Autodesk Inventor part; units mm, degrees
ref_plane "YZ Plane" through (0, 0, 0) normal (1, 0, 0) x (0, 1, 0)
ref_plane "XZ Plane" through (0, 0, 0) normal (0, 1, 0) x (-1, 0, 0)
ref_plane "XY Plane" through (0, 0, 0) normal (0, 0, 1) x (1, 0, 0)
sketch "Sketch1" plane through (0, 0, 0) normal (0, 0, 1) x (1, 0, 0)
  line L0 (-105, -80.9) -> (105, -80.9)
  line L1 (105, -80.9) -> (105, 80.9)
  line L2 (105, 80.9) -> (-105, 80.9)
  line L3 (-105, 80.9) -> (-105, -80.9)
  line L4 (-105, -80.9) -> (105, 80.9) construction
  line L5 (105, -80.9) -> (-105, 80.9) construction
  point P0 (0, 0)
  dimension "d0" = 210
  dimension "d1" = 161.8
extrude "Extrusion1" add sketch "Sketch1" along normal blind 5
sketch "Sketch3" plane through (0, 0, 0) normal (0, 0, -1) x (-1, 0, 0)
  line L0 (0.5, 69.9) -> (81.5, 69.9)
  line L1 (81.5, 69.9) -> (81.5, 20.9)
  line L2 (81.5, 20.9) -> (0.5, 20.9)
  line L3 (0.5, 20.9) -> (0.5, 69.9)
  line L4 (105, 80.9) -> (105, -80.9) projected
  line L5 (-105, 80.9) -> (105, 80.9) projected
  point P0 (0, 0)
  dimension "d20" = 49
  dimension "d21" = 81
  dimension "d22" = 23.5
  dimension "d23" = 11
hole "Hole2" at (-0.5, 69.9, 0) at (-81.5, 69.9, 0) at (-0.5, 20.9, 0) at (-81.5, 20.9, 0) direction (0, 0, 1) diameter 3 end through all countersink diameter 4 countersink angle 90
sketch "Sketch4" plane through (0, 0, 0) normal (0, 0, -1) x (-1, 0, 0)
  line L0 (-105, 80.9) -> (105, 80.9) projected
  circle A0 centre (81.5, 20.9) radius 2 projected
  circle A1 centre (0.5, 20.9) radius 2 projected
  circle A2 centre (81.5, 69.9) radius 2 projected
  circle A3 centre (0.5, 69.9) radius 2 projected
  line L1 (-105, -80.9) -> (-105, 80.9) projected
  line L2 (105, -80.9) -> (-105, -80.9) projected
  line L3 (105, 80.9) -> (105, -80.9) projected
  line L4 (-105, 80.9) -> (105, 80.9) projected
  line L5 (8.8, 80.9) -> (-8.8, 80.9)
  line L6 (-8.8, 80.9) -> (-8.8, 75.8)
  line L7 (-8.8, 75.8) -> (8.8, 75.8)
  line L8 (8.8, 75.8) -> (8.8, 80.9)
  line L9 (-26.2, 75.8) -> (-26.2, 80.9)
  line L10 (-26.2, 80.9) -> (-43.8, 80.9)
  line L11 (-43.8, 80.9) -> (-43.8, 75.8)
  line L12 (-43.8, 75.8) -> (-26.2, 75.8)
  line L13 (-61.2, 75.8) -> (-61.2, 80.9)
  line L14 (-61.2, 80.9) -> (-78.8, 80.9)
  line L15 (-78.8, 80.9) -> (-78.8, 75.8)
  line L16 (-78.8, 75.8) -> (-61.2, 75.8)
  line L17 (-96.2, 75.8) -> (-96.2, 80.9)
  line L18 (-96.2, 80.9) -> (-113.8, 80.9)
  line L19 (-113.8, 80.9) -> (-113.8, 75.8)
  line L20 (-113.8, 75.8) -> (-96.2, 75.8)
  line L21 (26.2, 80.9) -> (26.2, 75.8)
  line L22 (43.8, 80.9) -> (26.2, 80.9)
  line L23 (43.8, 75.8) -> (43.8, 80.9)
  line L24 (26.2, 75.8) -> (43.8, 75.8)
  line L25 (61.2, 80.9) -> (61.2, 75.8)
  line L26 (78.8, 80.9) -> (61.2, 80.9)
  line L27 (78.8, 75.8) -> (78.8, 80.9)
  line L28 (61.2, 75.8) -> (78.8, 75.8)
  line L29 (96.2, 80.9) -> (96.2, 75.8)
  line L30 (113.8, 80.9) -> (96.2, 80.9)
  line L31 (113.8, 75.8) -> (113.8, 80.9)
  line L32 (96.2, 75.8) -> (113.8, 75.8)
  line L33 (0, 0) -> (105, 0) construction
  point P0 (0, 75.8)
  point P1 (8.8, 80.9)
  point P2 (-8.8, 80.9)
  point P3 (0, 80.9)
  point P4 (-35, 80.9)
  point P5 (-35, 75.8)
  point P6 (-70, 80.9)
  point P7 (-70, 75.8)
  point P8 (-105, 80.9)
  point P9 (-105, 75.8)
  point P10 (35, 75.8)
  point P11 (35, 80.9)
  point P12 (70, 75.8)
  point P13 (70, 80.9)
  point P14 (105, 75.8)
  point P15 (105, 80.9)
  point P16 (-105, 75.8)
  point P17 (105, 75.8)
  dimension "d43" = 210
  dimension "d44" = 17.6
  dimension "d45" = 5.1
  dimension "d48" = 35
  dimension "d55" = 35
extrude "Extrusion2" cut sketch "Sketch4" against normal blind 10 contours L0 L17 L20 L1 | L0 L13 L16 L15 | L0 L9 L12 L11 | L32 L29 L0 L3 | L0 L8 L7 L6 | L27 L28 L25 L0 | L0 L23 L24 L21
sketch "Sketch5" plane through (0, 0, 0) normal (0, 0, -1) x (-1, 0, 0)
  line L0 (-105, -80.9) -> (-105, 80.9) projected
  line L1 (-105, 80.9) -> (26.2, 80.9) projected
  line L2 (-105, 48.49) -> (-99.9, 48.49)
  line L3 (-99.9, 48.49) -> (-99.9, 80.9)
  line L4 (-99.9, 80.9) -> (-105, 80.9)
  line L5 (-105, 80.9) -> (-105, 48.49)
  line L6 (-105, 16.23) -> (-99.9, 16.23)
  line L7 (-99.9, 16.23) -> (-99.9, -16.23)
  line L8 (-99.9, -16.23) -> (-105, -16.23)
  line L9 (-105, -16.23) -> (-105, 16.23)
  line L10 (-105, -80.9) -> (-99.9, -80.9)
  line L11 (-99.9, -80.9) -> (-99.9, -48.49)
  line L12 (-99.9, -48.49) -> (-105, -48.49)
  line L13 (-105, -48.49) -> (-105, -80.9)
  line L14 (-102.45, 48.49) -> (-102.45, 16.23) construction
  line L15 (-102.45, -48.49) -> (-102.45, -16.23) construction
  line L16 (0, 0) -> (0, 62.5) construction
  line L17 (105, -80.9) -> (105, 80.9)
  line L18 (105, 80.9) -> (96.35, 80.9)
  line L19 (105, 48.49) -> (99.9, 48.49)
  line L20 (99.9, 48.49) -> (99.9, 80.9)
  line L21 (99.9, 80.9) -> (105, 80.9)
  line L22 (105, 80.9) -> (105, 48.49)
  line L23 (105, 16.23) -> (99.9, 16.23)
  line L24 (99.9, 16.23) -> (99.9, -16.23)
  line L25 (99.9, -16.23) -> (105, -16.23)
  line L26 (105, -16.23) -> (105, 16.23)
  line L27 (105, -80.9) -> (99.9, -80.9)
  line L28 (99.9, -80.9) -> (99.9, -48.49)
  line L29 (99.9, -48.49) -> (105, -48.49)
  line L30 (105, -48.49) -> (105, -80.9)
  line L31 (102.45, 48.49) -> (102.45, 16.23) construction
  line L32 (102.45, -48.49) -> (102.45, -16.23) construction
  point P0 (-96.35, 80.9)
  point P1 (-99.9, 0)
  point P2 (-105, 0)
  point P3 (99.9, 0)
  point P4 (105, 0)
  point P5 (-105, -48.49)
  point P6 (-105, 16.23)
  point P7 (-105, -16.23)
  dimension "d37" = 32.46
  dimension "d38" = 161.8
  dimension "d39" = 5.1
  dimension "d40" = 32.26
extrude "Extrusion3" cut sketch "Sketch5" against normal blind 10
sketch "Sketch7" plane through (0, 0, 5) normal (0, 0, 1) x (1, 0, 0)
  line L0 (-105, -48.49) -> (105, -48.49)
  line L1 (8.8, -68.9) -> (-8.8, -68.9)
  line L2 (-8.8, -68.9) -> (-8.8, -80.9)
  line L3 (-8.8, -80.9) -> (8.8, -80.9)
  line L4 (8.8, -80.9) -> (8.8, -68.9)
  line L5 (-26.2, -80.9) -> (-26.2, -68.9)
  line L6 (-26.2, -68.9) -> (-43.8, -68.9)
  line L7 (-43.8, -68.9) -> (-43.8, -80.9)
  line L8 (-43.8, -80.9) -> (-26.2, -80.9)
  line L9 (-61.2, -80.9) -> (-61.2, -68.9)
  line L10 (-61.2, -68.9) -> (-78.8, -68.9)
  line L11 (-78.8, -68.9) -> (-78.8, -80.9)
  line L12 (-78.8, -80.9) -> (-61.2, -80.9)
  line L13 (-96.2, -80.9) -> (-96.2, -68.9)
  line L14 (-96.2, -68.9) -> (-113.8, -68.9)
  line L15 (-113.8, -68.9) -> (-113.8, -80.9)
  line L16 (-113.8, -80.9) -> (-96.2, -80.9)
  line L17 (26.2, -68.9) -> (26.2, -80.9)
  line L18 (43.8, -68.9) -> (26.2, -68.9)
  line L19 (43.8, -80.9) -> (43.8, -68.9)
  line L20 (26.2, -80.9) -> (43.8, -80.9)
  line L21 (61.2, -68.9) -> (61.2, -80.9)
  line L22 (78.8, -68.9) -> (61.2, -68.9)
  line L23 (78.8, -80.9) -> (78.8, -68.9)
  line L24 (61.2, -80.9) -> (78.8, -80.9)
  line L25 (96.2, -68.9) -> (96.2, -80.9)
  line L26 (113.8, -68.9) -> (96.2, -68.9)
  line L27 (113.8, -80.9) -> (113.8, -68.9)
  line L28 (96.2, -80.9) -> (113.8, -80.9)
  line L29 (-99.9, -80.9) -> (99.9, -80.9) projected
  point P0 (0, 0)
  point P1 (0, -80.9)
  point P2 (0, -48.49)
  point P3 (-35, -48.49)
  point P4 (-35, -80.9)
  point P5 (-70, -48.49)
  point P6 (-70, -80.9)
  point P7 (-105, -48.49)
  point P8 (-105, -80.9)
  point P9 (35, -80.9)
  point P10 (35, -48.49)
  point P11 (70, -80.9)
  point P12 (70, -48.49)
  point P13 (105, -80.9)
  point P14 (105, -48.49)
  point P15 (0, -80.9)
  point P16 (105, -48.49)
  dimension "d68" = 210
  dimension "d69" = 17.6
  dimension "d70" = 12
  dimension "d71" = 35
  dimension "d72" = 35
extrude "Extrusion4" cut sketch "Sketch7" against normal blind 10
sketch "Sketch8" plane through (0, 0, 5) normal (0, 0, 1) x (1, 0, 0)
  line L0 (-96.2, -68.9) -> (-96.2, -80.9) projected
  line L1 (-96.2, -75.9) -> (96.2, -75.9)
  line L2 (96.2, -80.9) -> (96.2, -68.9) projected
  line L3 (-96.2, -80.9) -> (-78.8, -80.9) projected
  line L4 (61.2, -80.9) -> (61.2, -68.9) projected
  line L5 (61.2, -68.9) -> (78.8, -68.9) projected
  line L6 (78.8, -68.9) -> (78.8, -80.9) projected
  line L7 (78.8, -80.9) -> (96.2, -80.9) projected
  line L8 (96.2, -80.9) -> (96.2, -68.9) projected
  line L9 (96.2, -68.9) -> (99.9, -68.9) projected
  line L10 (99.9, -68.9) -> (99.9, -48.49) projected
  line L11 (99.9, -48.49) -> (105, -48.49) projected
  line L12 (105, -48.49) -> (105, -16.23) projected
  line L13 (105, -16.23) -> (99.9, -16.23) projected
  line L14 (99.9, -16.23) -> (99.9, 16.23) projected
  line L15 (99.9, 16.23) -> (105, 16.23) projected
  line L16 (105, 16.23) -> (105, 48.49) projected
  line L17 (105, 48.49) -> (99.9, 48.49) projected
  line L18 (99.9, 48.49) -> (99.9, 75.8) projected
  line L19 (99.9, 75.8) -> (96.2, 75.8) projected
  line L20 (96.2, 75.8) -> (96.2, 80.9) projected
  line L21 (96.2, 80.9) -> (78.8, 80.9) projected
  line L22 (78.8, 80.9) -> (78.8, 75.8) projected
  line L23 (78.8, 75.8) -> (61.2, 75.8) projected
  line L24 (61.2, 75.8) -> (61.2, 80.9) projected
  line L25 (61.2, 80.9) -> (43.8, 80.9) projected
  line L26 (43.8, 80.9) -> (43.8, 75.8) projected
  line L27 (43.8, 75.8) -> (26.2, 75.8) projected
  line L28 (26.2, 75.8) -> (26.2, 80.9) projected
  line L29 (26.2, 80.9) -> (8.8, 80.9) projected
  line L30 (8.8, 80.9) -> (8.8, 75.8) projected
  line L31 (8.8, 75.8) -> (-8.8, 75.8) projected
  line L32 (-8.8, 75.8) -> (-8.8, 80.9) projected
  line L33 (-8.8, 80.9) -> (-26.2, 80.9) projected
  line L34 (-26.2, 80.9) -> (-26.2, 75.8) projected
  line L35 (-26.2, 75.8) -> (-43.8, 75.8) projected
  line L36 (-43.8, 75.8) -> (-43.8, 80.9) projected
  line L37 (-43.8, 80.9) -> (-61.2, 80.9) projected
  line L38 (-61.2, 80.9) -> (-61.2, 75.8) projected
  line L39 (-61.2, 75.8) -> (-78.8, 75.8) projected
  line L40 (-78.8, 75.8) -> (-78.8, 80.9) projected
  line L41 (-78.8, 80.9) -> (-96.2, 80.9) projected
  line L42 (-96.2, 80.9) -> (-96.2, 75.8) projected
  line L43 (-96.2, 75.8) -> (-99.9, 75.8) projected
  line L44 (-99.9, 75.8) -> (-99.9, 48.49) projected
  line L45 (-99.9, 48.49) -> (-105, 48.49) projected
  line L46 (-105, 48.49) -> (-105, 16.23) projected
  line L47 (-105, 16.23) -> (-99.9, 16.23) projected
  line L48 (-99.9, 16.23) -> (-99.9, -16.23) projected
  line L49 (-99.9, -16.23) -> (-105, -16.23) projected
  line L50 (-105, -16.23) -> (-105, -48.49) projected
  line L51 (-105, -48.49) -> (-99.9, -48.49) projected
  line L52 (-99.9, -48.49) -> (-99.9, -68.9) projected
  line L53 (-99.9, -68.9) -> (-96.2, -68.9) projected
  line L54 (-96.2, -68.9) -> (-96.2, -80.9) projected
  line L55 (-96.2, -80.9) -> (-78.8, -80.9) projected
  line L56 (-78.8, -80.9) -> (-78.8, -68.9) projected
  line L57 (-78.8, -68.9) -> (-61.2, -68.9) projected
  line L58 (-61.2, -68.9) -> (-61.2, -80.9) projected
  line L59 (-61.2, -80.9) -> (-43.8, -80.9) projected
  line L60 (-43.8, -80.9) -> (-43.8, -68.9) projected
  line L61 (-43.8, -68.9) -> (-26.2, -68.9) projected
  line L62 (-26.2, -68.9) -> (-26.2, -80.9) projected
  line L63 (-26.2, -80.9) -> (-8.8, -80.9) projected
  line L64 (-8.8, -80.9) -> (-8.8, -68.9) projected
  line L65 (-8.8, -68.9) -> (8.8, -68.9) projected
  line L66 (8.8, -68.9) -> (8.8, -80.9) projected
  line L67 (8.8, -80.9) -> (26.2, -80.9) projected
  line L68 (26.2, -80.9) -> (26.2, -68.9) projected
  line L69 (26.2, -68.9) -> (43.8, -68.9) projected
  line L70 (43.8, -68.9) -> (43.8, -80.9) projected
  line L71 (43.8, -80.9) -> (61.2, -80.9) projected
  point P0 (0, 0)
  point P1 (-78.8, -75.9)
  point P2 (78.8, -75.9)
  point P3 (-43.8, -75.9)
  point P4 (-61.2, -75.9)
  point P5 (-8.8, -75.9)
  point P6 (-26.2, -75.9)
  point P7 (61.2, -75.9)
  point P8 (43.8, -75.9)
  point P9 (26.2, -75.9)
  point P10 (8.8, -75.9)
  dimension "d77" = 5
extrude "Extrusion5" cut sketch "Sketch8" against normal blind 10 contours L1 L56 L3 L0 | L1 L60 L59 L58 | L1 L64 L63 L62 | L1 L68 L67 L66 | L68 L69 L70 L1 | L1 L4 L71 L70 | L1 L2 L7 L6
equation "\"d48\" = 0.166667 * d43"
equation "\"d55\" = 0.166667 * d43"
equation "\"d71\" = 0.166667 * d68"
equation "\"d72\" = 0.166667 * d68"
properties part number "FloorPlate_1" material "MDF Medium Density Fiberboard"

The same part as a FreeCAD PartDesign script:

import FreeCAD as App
import Part
import Sketcher

V = App.Vector

doc = App.newDocument("Part")
body = doc.addObject("PartDesign::Body", "Body")

# Sketch on XY plane
sketch1 = body.newObject("Sketcher::SketchObject", "Sketch")
sketch1.AttachmentSupport = (doc.getObject("XY_Plane"), [""])
sketch1.MapMode = "FlatFace"
sketch1.addGeometry([
    Part.LineSegment(V(-105, 81, 0), V(-105, -81, 0)),
    Part.LineSegment(V(-105, -81, 0), V(105, -81, 0)),
    Part.LineSegment(V(105, -81, 0), V(105, 81, 0)),
    Part.LineSegment(V(105, 81, 0), V(-105, 81, 0)),
], False)
sketch1.addConstraint([
    Sketcher.Constraint("Coincident", 0, 2, 1, 1),
    Sketcher.Constraint("Coincident", 1, 2, 2, 1),
    Sketcher.Constraint("Coincident", 2, 2, 3, 1),
    Sketcher.Constraint("Coincident", 3, 2, 0, 1),
    Sketcher.Constraint("Vertical", 0),
    Sketcher.Constraint("Horizontal", 1),
    Sketcher.Constraint("Vertical", 2),
    Sketcher.Constraint("Horizontal", 3),
    Sketcher.Constraint("Symmetric", 0, 2, 2, 2, -1, 1),
    Sketcher.Constraint("DistanceX", 1, 1, 1, 2, 210.0),
    Sketcher.Constraint("DistanceY", 0, 2, 0, 1, 161.8),
])
pad1 = body.newObject("PartDesign::Pad", "Pad")
pad1.Profile = sketch1
pad1.Length = 5

# Sketch on XY plane
sketch2 = body.newObject("Sketcher::SketchObject", "Sketch001")
sketch2.AttachmentSupport = (doc.getObject("XY_Plane"), [""])
sketch2.MapMode = "FlatFace"
sketch2.addGeometry([
    Part.Circle(V(-0.5, 69.9, 0), V(0, 0, 1), 1.5),
    Part.Circle(V(-81.5, 69.9, 0), V(0, 0, 1), 1.5),
    Part.Circle(V(-0.5, 20.9, 0), V(0, 0, 1), 1.5),
    Part.Circle(V(-81.5, 20.9, 0), V(0, 0, 1), 1.5),
], False)
sketch2.addConstraint([
    Sketcher.Constraint("Equal", 0, 1),
    Sketcher.Constraint("Equal", 1, 2),
    Sketcher.Constraint("Equal", 2, 3),
    Sketcher.Constraint("Horizontal", 0, 3, 1, 3),
    Sketcher.Constraint("Horizontal", 2, 3, 3, 3),
    Sketcher.Constraint("Vertical", 0, 3, 2, 3),
    Sketcher.Constraint("Vertical", 1, 3, 3, 3),
    Sketcher.Constraint("Diameter", 0, 3.0),
    Sketcher.Constraint("DistanceX", 1, 3, 0, 3, 81.0),
    Sketcher.Constraint("DistanceY", 2, 3, 0, 3, 49.0),
    Sketcher.Constraint("DistanceX", 0, 3, -1, 1, 0.5),
    Sketcher.Constraint("DistanceY", -1, 1, 0, 3, 69.9),
])
doc.recompute()
hole = body.newObject("PartDesign::Hole", "Hole")
hole.Profile = sketch2
hole.ThreadType = "None"
hole.Diameter = 3
hole.DepthType = "ThroughAll"
hole.HoleCutType = "Countersink"
hole.HoleCutDiameter = 4
hole.HoleCutCountersinkAngle = 90
hole.Reversed = True

# Sketch on XY plane
sketch3 = body.newObject("Sketcher::SketchObject", "Sketch002")
sketch3.AttachmentSupport = (doc.getObject("XY_Plane"), [""])
sketch3.MapMode = "FlatFace"
sketch3.addGeometry([
    Part.LineSegment(V(96, 81, 0), V(105, 81, 0)),  # 0
    Part.LineSegment(V(105, 81, 0), V(105, 76, 0)),  # 1
    Part.LineSegment(V(105, 76, 0), V(96, 76, 0)),  # 2
    Part.LineSegment(V(96, 76, 0), V(96, 81, 0)),  # 3
    Part.LineSegment(V(61, 81, 0), V(79, 81, 0)),  # 4
    Part.LineSegment(V(79, 81, 0), V(79, 76, 0)),  # 5
    Part.LineSegment(V(79, 76, 0), V(61, 76, 0)),  # 6
    Part.LineSegment(V(61, 76, 0), V(61, 81, 0)),  # 7
    Part.LineSegment(V(26, 81, 0), V(44, 81, 0)),  # 8
    Part.LineSegment(V(44, 81, 0), V(44, 76, 0)),  # 9
    Part.LineSegment(V(44, 76, 0), V(26, 76, 0)),  # 10
    Part.LineSegment(V(26, 76, 0), V(26, 81, 0)),  # 11
    Part.LineSegment(V(-96, 76, 0), V(-105, 76, 0)),  # 12
    Part.LineSegment(V(-105, 76, 0), V(-105, 81, 0)),  # 13
    Part.LineSegment(V(-105, 81, 0), V(-96, 81, 0)),  # 14
    Part.LineSegment(V(-96, 81, 0), V(-96, 76, 0)),  # 15
    Part.LineSegment(V(-9, 81, 0), V(9, 81, 0)),  # 16
    Part.LineSegment(V(9, 81, 0), V(9, 76, 0)),  # 17
    Part.LineSegment(V(9, 76, 0), V(-9, 76, 0)),  # 18
    Part.LineSegment(V(-9, 76, 0), V(-9, 81, 0)),  # 19
    Part.LineSegment(V(-79, 76, 0), V(-79, 81, 0)),  # 20
    Part.LineSegment(V(-79, 81, 0), V(-61, 81, 0)),  # 21
    Part.LineSegment(V(-61, 81, 0), V(-61, 76, 0)),  # 22
    Part.LineSegment(V(-61, 76, 0), V(-79, 76, 0)),  # 23
    Part.LineSegment(V(-44, 81, 0), V(-26, 81, 0)),  # 24
    Part.LineSegment(V(-26, 81, 0), V(-26, 76, 0)),  # 25
    Part.LineSegment(V(-26, 76, 0), V(-44, 76, 0)),  # 26
    Part.LineSegment(V(-44, 76, 0), V(-44, 81, 0)),  # 27
], False)
sketch3.addConstraint([
    Sketcher.Constraint("Coincident", 0, 2, 1, 1),
    Sketcher.Constraint("Coincident", 1, 2, 2, 1),
    Sketcher.Constraint("Coincident", 2, 2, 3, 1),
    Sketcher.Constraint("Coincident", 3, 2, 0, 1),
    Sketcher.Constraint("Coincident", 4, 2, 5, 1),
    Sketcher.Constraint("Coincident", 5, 2, 6, 1),
    Sketcher.Constraint("Coincident", 6, 2, 7, 1),
    Sketcher.Constraint("Coincident", 7, 2, 4, 1),
    Sketcher.Constraint("Coincident", 8, 2, 9, 1),
    Sketcher.Constraint("Coincident", 9, 2, 10, 1),
    Sketcher.Constraint("Coincident", 10, 2, 11, 1),
    Sketcher.Constraint("Coincident", 11, 2, 8, 1),
    Sketcher.Constraint("Coincident", 12, 2, 13, 1),
    Sketcher.Constraint("Coincident", 13, 2, 14, 1),
    Sketcher.Constraint("Coincident", 14, 2, 15, 1),
    Sketcher.Constraint("Coincident", 15, 2, 12, 1),
    Sketcher.Constraint("Coincident", 16, 2, 17, 1),
    Sketcher.Constraint("Coincident", 17, 2, 18, 1),
    Sketcher.Constraint("Coincident", 18, 2, 19, 1),
    Sketcher.Constraint("Coincident", 19, 2, 16, 1),
    Sketcher.Constraint("Coincident", 20, 2, 21, 1),
    Sketcher.Constraint("Coincident", 21, 2, 22, 1),
    Sketcher.Constraint("Coincident", 22, 2, 23, 1),
    Sketcher.Constraint("Coincident", 23, 2, 20, 1),
    Sketcher.Constraint("Coincident", 24, 2, 25, 1),
    Sketcher.Constraint("Coincident", 25, 2, 26, 1),
    Sketcher.Constraint("Coincident", 26, 2, 27, 1),
    Sketcher.Constraint("Coincident", 27, 2, 24, 1),
    Sketcher.Constraint("Horizontal", 0),
    Sketcher.Constraint("Vertical", 1),
    Sketcher.Constraint("Horizontal", 2),
    Sketcher.Constraint("Vertical", 3),
    Sketcher.Constraint("Horizontal", 4),
    Sketcher.Constraint("Vertical", 5),
    Sketcher.Constraint("Horizontal", 6),
    Sketcher.Constraint("Vertical", 7),
    Sketcher.Constraint("Horizontal", 8),
    Sketcher.Constraint("Vertical", 9),
    Sketcher.Constraint("Horizontal", 10),
    Sketcher.Constraint("Vertical", 11),
    Sketcher.Constraint("Horizontal", 12),
    Sketcher.Constraint("Vertical", 13),
    Sketcher.Constraint("Horizontal", 14),
    Sketcher.Constraint("Vertical", 15),
    Sketcher.Constraint("Horizontal", 16),
    Sketcher.Constraint("Vertical", 17),
    Sketcher.Constraint("Horizontal", 18),
    Sketcher.Constraint("Vertical", 19),
    Sketcher.Constraint("Vertical", 20),
    Sketcher.Constraint("Horizontal", 21),
    Sketcher.Constraint("Vertical", 22),
    Sketcher.Constraint("Horizontal", 23),
    Sketcher.Constraint("Horizontal", 24),
    Sketcher.Constraint("Vertical", 25),
    Sketcher.Constraint("Horizontal", 26),
    Sketcher.Constraint("Vertical", 27),
    Sketcher.Constraint("Symmetric", 1, 2, 12, 2, -2),
    Sketcher.Constraint("Symmetric", 3, 2, 14, 2, -2),
    Sketcher.Constraint("Symmetric", 4, 2, 20, 2, -2),
    Sketcher.Constraint("Symmetric", 6, 2, 22, 2, -2),
    Sketcher.Constraint("Symmetric", 11, 2, 24, 2, -2),
    Sketcher.Constraint("Symmetric", 9, 2, 26, 2, -2),
    Sketcher.Constraint("Horizontal", 3, 2, 4, 2),
    Sketcher.Constraint("Horizontal", 2, 2, 5, 2),
    Sketcher.Constraint("Horizontal", 7, 2, 8, 2),
    Sketcher.Constraint("Horizontal", 6, 2, 9, 2),
    Sketcher.Constraint("Horizontal", 14, 2, 16, 2),
    Sketcher.Constraint("Horizontal", 15, 2, 17, 2),
    Sketcher.Constraint("Equal", 6, 8),
    Sketcher.Constraint("Equal", 10, 16),
    Sketcher.Constraint("DistanceX", 4, 1, 4, 2, 17.6),
    Sketcher.Constraint("DistanceY", 1, 2, 1, 1, 5.1),
    Sketcher.Constraint("DistanceX", 6, 2, 2, 2, 35.0),
    Sketcher.Constraint("DistanceX", 8, 2, 4, 2, 35.0),
    Sketcher.Constraint("DistanceX", 16, 2, 8, 2, 35.0),
    Sketcher.Constraint("DistanceX", 24, 2, 16, 2, 35.0),
    Sketcher.Constraint("DistanceX", 0, 1, 0, 2, 8.8),
    Sketcher.Constraint("DistanceY", -1, 1, 0, 2, 80.9),
])
pocket1 = body.newObject("PartDesign::Pocket", "Pocket")
pocket1.Profile = sketch3
pocket1.Length = 10
pocket1.Reversed = True

# Sketch on XY plane
sketch4 = body.newObject("Sketcher::SketchObject", "Sketch003")
sketch4.AttachmentSupport = (doc.getObject("XY_Plane"), [""])
sketch4.MapMode = "FlatFace"
sketch4.addGeometry([
    Part.LineSegment(V(105, 81, 0), V(105, 48, 0)),  # 0
    Part.LineSegment(V(105, 48, 0), V(100, 48, 0)),  # 1
    Part.LineSegment(V(100, 48, 0), V(100, 81, 0)),  # 2
    Part.LineSegment(V(100, 81, 0), V(105, 81, 0)),  # 3
    Part.LineSegment(V(105, 16, 0), V(105, -16, 0)),  # 4
    Part.LineSegment(V(105, -16, 0), V(100, -16, 0)),  # 5
    Part.LineSegment(V(100, -16, 0), V(100, 16, 0)),  # 6
    Part.LineSegment(V(100, 16, 0), V(105, 16, 0)),  # 7
    Part.LineSegment(V(105, -48, 0), V(105, -81, 0)),  # 8
    Part.LineSegment(V(105, -81, 0), V(100, -81, 0)),  # 9
    Part.LineSegment(V(100, -81, 0), V(100, -48, 0)),  # 10
    Part.LineSegment(V(100, -48, 0), V(105, -48, 0)),  # 11
    Part.LineSegment(V(-100, -81, 0), V(-105, -81, 0)),  # 12
    Part.LineSegment(V(-105, -81, 0), V(-105, -48, 0)),  # 13
    Part.LineSegment(V(-105, -48, 0), V(-100, -48, 0)),  # 14
    Part.LineSegment(V(-100, -48, 0), V(-100, -81, 0)),  # 15
    Part.LineSegment(V(-100, 48, 0), V(-105, 48, 0)),  # 16
    Part.LineSegment(V(-105, 48, 0), V(-105, 81, 0)),  # 17
    Part.LineSegment(V(-105, 81, 0), V(-100, 81, 0)),  # 18
    Part.LineSegment(V(-100, 81, 0), V(-100, 48, 0)),  # 19
    Part.LineSegment(V(-100, -16, 0), V(-105, -16, 0)),  # 20
    Part.LineSegment(V(-105, -16, 0), V(-105, 16, 0)),  # 21
    Part.LineSegment(V(-105, 16, 0), V(-100, 16, 0)),  # 22
    Part.LineSegment(V(-100, 16, 0), V(-100, -16, 0)),  # 23
], False)
sketch4.addConstraint([
    Sketcher.Constraint("Coincident", 0, 2, 1, 1),
    Sketcher.Constraint("Coincident", 1, 2, 2, 1),
    Sketcher.Constraint("Coincident", 2, 2, 3, 1),
    Sketcher.Constraint("Coincident", 3, 2, 0, 1),
    Sketcher.Constraint("Coincident", 4, 2, 5, 1),
    Sketcher.Constraint("Coincident", 5, 2, 6, 1),
    Sketcher.Constraint("Coincident", 6, 2, 7, 1),
    Sketcher.Constraint("Coincident", 7, 2, 4, 1),
    Sketcher.Constraint("Coincident", 8, 2, 9, 1),
    Sketcher.Constraint("Coincident", 9, 2, 10, 1),
    Sketcher.Constraint("Coincident", 10, 2, 11, 1),
    Sketcher.Constraint("Coincident", 11, 2, 8, 1),
    Sketcher.Constraint("Coincident", 12, 2, 13, 1),
    Sketcher.Constraint("Coincident", 13, 2, 14, 1),
    Sketcher.Constraint("Coincident", 14, 2, 15, 1),
    Sketcher.Constraint("Coincident", 15, 2, 12, 1),
    Sketcher.Constraint("Coincident", 16, 2, 17, 1),
    Sketcher.Constraint("Coincident", 17, 2, 18, 1),
    Sketcher.Constraint("Coincident", 18, 2, 19, 1),
    Sketcher.Constraint("Coincident", 19, 2, 16, 1),
    Sketcher.Constraint("Coincident", 20, 2, 21, 1),
    Sketcher.Constraint("Coincident", 21, 2, 22, 1),
    Sketcher.Constraint("Coincident", 22, 2, 23, 1),
    Sketcher.Constraint("Coincident", 23, 2, 20, 1),
    Sketcher.Constraint("Vertical", 0),
    Sketcher.Constraint("Horizontal", 1),
    Sketcher.Constraint("Vertical", 2),
    Sketcher.Constraint("Horizontal", 3),
    Sketcher.Constraint("Vertical", 4),
    Sketcher.Constraint("Horizontal", 5),
    Sketcher.Constraint("Vertical", 6),
    Sketcher.Constraint("Horizontal", 7),
    Sketcher.Constraint("Vertical", 8),
    Sketcher.Constraint("Horizontal", 9),
    Sketcher.Constraint("Vertical", 10),
    Sketcher.Constraint("Horizontal", 11),
    Sketcher.Constraint("Horizontal", 12),
    Sketcher.Constraint("Vertical", 13),
    Sketcher.Constraint("Horizontal", 14),
    Sketcher.Constraint("Vertical", 15),
    Sketcher.Constraint("Horizontal", 16),
    Sketcher.Constraint("Vertical", 17),
    Sketcher.Constraint("Horizontal", 18),
    Sketcher.Constraint("Vertical", 19),
    Sketcher.Constraint("Horizontal", 20),
    Sketcher.Constraint("Vertical", 21),
    Sketcher.Constraint("Horizontal", 22),
    Sketcher.Constraint("Vertical", 23),
    Sketcher.Constraint("Symmetric", 3, 2, 12, 2, -1, 1),
    Sketcher.Constraint("Symmetric", 1, 2, 14, 2, -1, 1),
    Sketcher.Constraint("Symmetric", 11, 2, 16, 2, -1, 1),
    Sketcher.Constraint("Symmetric", 9, 2, 18, 2, -1, 1),
    Sketcher.Constraint("Symmetric", 7, 2, 20, 2, -1, 1),
    Sketcher.Constraint("Symmetric", 5, 2, 22, 2, -1, 1),
    Sketcher.Constraint("Symmetric", 8, 2, 12, 2, -2),
    Sketcher.Constraint("Symmetric", 10, 2, 14, 2, -2),
    Sketcher.Constraint("Horizontal", 5, 2, 20, 2),
    Sketcher.Constraint("Vertical", 3, 2, 4, 2),
    Sketcher.Constraint("Vertical", 2, 2, 5, 2),
    Sketcher.Constraint("DistanceX", 1, 2, 1, 1, 5.1),
    Sketcher.Constraint("DistanceY", 4, 2, 4, 1, 32.46),
    Sketcher.Constraint("DistanceY", 12, 2, 17, 2, 161.8),
    Sketcher.Constraint("DistanceY", 6, 2, 1, 2, 32.26),
    Sketcher.Constraint("DistanceX", -1, 1, 0, 2, 105.0),
])
pocket2 = body.newObject("PartDesign::Pocket", "Pocket001")
pocket2.Profile = sketch4
pocket2.Length = 10
pocket2.Reversed = True

# Sketch on XY plane
sketch5 = body.newObject("Sketcher::SketchObject", "Sketch004")
sketch5.AttachmentSupport = (doc.getObject("XY_Plane"), [""])
sketch5.MapMode = "FlatFace"
sketch5.AttachmentOffset = App.Placement(V(0, 0, 5), App.Rotation())
sketch5.addGeometry([
    Part.LineSegment(V(9, -81, 0), V(9, -69, 0)),  # 0
    Part.LineSegment(V(9, -69, 0), V(-9, -69, 0)),  # 1
    Part.LineSegment(V(-9, -69, 0), V(-9, -81, 0)),  # 2
    Part.LineSegment(V(-9, -81, 0), V(9, -81, 0)),  # 3
    Part.LineSegment(V(96, -69, 0), V(96, -81, 0)),  # 4
    Part.LineSegment(V(96, -81, 0), V(114, -81, 0)),  # 5
    Part.LineSegment(V(114, -81, 0), V(114, -69, 0)),  # 6
    Part.LineSegment(V(114, -69, 0), V(96, -69, 0)),  # 7
    Part.LineSegment(V(61, -69, 0), V(61, -81, 0)),  # 8
    Part.LineSegment(V(61, -81, 0), V(79, -81, 0)),  # 9
    Part.LineSegment(V(79, -81, 0), V(79, -69, 0)),  # 10
    Part.LineSegment(V(79, -69, 0), V(61, -69, 0)),  # 11
    Part.LineSegment(V(26, -69, 0), V(26, -81, 0)),  # 12
    Part.LineSegment(V(26, -81, 0), V(44, -81, 0)),  # 13
    Part.LineSegment(V(44, -81, 0), V(44, -69, 0)),  # 14
    Part.LineSegment(V(44, -69, 0), V(26, -69, 0)),  # 15
    Part.LineSegment(V(-114, -81, 0), V(-96, -81, 0)),  # 16
    Part.LineSegment(V(-96, -81, 0), V(-96, -69, 0)),  # 17
    Part.LineSegment(V(-96, -69, 0), V(-114, -69, 0)),  # 18
    Part.LineSegment(V(-114, -69, 0), V(-114, -81, 0)),  # 19
    Part.LineSegment(V(-79, -81, 0), V(-61, -81, 0)),  # 20
    Part.LineSegment(V(-61, -81, 0), V(-61, -69, 0)),  # 21
    Part.LineSegment(V(-61, -69, 0), V(-79, -69, 0)),  # 22
    Part.LineSegment(V(-79, -69, 0), V(-79, -81, 0)),  # 23
    Part.LineSegment(V(-44, -81, 0), V(-26, -81, 0)),  # 24
    Part.LineSegment(V(-26, -81, 0), V(-26, -69, 0)),  # 25
    Part.LineSegment(V(-26, -69, 0), V(-44, -69, 0)),  # 26
    Part.LineSegment(V(-44, -69, 0), V(-44, -81, 0)),  # 27
], False)
sketch5.addConstraint([
    Sketcher.Constraint("Coincident", 0, 2, 1, 1),
    Sketcher.Constraint("Coincident", 1, 2, 2, 1),
    Sketcher.Constraint("Coincident", 2, 2, 3, 1),
    Sketcher.Constraint("Coincident", 3, 2, 0, 1),
    Sketcher.Constraint("Coincident", 4, 2, 5, 1),
    Sketcher.Constraint("Coincident", 5, 2, 6, 1),
    Sketcher.Constraint("Coincident", 6, 2, 7, 1),
    Sketcher.Constraint("Coincident", 7, 2, 4, 1),
    Sketcher.Constraint("Coincident", 8, 2, 9, 1),
    Sketcher.Constraint("Coincident", 9, 2, 10, 1),
    Sketcher.Constraint("Coincident", 10, 2, 11, 1),
    Sketcher.Constraint("Coincident", 11, 2, 8, 1),
    Sketcher.Constraint("Coincident", 12, 2, 13, 1),
    Sketcher.Constraint("Coincident", 13, 2, 14, 1),
    Sketcher.Constraint("Coincident", 14, 2, 15, 1),
    Sketcher.Constraint("Coincident", 15, 2, 12, 1),
    Sketcher.Constraint("Coincident", 16, 2, 17, 1),
    Sketcher.Constraint("Coincident", 17, 2, 18, 1),
    Sketcher.Constraint("Coincident", 18, 2, 19, 1),
    Sketcher.Constraint("Coincident", 19, 2, 16, 1),
    Sketcher.Constraint("Coincident", 20, 2, 21, 1),
    Sketcher.Constraint("Coincident", 21, 2, 22, 1),
    Sketcher.Constraint("Coincident", 22, 2, 23, 1),
    Sketcher.Constraint("Coincident", 23, 2, 20, 1),
    Sketcher.Constraint("Coincident", 24, 2, 25, 1),
    Sketcher.Constraint("Coincident", 25, 2, 26, 1),
    Sketcher.Constraint("Coincident", 26, 2, 27, 1),
    Sketcher.Constraint("Coincident", 27, 2, 24, 1),
    Sketcher.Constraint("Vertical", 0),
    Sketcher.Constraint("Horizontal", 1),
    Sketcher.Constraint("Vertical", 2),
    Sketcher.Constraint("Horizontal", 3),
    Sketcher.Constraint("Vertical", 4),
    Sketcher.Constraint("Horizontal", 5),
    Sketcher.Constraint("Vertical", 6),
    Sketcher.Constraint("Horizontal", 7),
    Sketcher.Constraint("Vertical", 8),
    Sketcher.Constraint("Horizontal", 9),
    Sketcher.Constraint("Vertical", 10),
    Sketcher.Constraint("Horizontal", 11),
    Sketcher.Constraint("Vertical", 12),
    Sketcher.Constraint("Horizontal", 13),
    Sketcher.Constraint("Vertical", 14),
    Sketcher.Constraint("Horizontal", 15),
    Sketcher.Constraint("Horizontal", 16),
    Sketcher.Constraint("Vertical", 17),
    Sketcher.Constraint("Horizontal", 18),
    Sketcher.Constraint("Vertical", 19),
    Sketcher.Constraint("Horizontal", 20),
    Sketcher.Constraint("Vertical", 21),
    Sketcher.Constraint("Horizontal", 22),
    Sketcher.Constraint("Vertical", 23),
    Sketcher.Constraint("Horizontal", 24),
    Sketcher.Constraint("Vertical", 25),
    Sketcher.Constraint("Horizontal", 26),
    Sketcher.Constraint("Vertical", 27),
    Sketcher.Constraint("Symmetric", 4, 2, 16, 2, -2),
    Sketcher.Constraint("Symmetric", 6, 2, 18, 2, -2),
    Sketcher.Constraint("Symmetric", 8, 2, 20, 2, -2),
    Sketcher.Constraint("Symmetric", 10, 2, 22, 2, -2),
    Sketcher.Constraint("Symmetric", 12, 2, 24, 2, -2),
    Sketcher.Constraint("Symmetric", 14, 2, 26, 2, -2),
    Sketcher.Constraint("Horizontal", 3, 2, 4, 2),
    Sketcher.Constraint("Horizontal", 1, 2, 6, 2),
    Sketcher.Constraint("Horizontal", 5, 2, 8, 2),
    Sketcher.Constraint("Horizontal", 7, 2, 10, 2),
    Sketcher.Constraint("Horizontal", 9, 2, 12, 2),
    Sketcher.Constraint("Horizontal", 11, 2, 14, 2),
    Sketcher.Constraint("Equal", 3, 5),
    Sketcher.Constraint("Equal", 7, 9),
    Sketcher.Constraint("Equal", 11, 13),
    Sketcher.Constraint("DistanceY", 0, 1, 0, 2, 12.0),
    Sketcher.Constraint("DistanceX", 1, 2, 1, 1, 17.6),
    Sketcher.Constraint("DistanceX", 8, 2, 4, 2, 35.0),
    Sketcher.Constraint("DistanceX", 2, 2, 12, 2, 35.0),
    Sketcher.Constraint("DistanceX", 12, 2, 8, 2, 35.0),
    Sketcher.Constraint("DistanceX", 24, 2, 3, 2, 35.0),
    Sketcher.Constraint("DistanceY", 0, 2, -1, 1, 68.9),
])
pocket3 = body.newObject("PartDesign::Pocket", "Pocket002")
pocket3.Profile = sketch5
pocket3.Length = 10

# Sketch on XY plane
sketch6 = body.newObject("Sketcher::SketchObject", "Sketch005")
sketch6.AttachmentSupport = (doc.getObject("XY_Plane"), [""])
sketch6.MapMode = "FlatFace"
sketch6.AttachmentOffset = App.Placement(V(0, 0, 5), App.Rotation())
sketch6.addGeometry([
    Part.LineSegment(V(-79, -76, 0), V(-96, -76, 0)),  # 0
    Part.LineSegment(V(-96, -76, 0), V(-96, -81, 0)),  # 1
    Part.LineSegment(V(-96, -81, 0), V(-79, -81, 0)),  # 2
    Part.LineSegment(V(-79, -81, 0), V(-79, -76, 0)),  # 3
    Part.LineSegment(V(-44, -76, 0), V(-61, -76, 0)),  # 4
    Part.LineSegment(V(-61, -76, 0), V(-61, -81, 0)),  # 5
    Part.LineSegment(V(-61, -81, 0), V(-44, -81, 0)),  # 6
    Part.LineSegment(V(-44, -81, 0), V(-44, -76, 0)),  # 7
    Part.LineSegment(V(-9, -76, 0), V(-26, -76, 0)),  # 8
    Part.LineSegment(V(-26, -76, 0), V(-26, -81, 0)),  # 9
    Part.LineSegment(V(-26, -81, 0), V(-9, -81, 0)),  # 10
    Part.LineSegment(V(-9, -81, 0), V(-9, -76, 0)),  # 11
    Part.LineSegment(V(26, -76, 0), V(9, -76, 0)),  # 12
    Part.LineSegment(V(9, -76, 0), V(9, -81, 0)),  # 13
    Part.LineSegment(V(9, -81, 0), V(26, -81, 0)),  # 14
    Part.LineSegment(V(26, -81, 0), V(26, -76, 0)),  # 15
    Part.LineSegment(V(26, -69, 0), V(26, -76, 0)),  # 16
    Part.LineSegment(V(26, -76, 0), V(44, -76, 0)),  # 17
    Part.LineSegment(V(44, -76, 0), V(44, -69, 0)),  # 18
    Part.LineSegment(V(44, -69, 0), V(26, -69, 0)),  # 19
    Part.LineSegment(V(61, -76, 0), V(44, -76, 0)),  # 20
    Part.LineSegment(V(44, -76, 0), V(44, -81, 0)),  # 21
    Part.LineSegment(V(44, -81, 0), V(61, -81, 0)),  # 22
    Part.LineSegment(V(61, -81, 0), V(61, -76, 0)),  # 23
    Part.LineSegment(V(96, -76, 0), V(79, -76, 0)),  # 24
    Part.LineSegment(V(79, -76, 0), V(79, -81, 0)),  # 25
    Part.LineSegment(V(79, -81, 0), V(96, -81, 0)),  # 26
    Part.LineSegment(V(96, -81, 0), V(96, -76, 0)),  # 27
], False)
sketch6.addConstraint([
    Sketcher.Constraint("Coincident", 0, 2, 1, 1),
    Sketcher.Constraint("Coincident", 1, 2, 2, 1),
    Sketcher.Constraint("Coincident", 2, 2, 3, 1),
    Sketcher.Constraint("Coincident", 3, 2, 0, 1),
    Sketcher.Constraint("Coincident", 4, 2, 5, 1),
    Sketcher.Constraint("Coincident", 5, 2, 6, 1),
    Sketcher.Constraint("Coincident", 6, 2, 7, 1),
    Sketcher.Constraint("Coincident", 7, 2, 4, 1),
    Sketcher.Constraint("Coincident", 8, 2, 9, 1),
    Sketcher.Constraint("Coincident", 9, 2, 10, 1),
    Sketcher.Constraint("Coincident", 10, 2, 11, 1),
    Sketcher.Constraint("Coincident", 11, 2, 8, 1),
    Sketcher.Constraint("Coincident", 12, 2, 13, 1),
    Sketcher.Constraint("Coincident", 13, 2, 14, 1),
    Sketcher.Constraint("Coincident", 14, 2, 15, 1),
    Sketcher.Constraint("Coincident", 15, 2, 12, 1),
    Sketcher.Constraint("Coincident", 16, 2, 17, 1),
    Sketcher.Constraint("Coincident", 17, 2, 18, 1),
    Sketcher.Constraint("Coincident", 18, 2, 19, 1),
    Sketcher.Constraint("Coincident", 19, 2, 16, 1),
    Sketcher.Constraint("Coincident", 20, 2, 21, 1),
    Sketcher.Constraint("Coincident", 21, 2, 22, 1),
    Sketcher.Constraint("Coincident", 22, 2, 23, 1),
    Sketcher.Constraint("Coincident", 23, 2, 20, 1),
    Sketcher.Constraint("Coincident", 24, 2, 25, 1),
    Sketcher.Constraint("Coincident", 25, 2, 26, 1),
    Sketcher.Constraint("Coincident", 26, 2, 27, 1),
    Sketcher.Constraint("Coincident", 27, 2, 24, 1),
    Sketcher.Constraint("Horizontal", 0),
    Sketcher.Constraint("Vertical", 1),
    Sketcher.Constraint("Horizontal", 2),
    Sketcher.Constraint("Vertical", 3),
    Sketcher.Constraint("Horizontal", 4),
    Sketcher.Constraint("Vertical", 5),
    Sketcher.Constraint("Horizontal", 6),
    Sketcher.Constraint("Vertical", 7),
    Sketcher.Constraint("Horizontal", 8),
    Sketcher.Constraint("Vertical", 9),
    Sketcher.Constraint("Horizontal", 10),
    Sketcher.Constraint("Vertical", 11),
    Sketcher.Constraint("Horizontal", 12),
    Sketcher.Constraint("Vertical", 13),
    Sketcher.Constraint("Horizontal", 14),
    Sketcher.Constraint("Vertical", 15),
    Sketcher.Constraint("Vertical", 16),
    Sketcher.Constraint("Horizontal", 17),
    Sketcher.Constraint("Vertical", 18),
    Sketcher.Constraint("Horizontal", 19),
    Sketcher.Constraint("Horizontal", 20),
    Sketcher.Constraint("Vertical", 21),
    Sketcher.Constraint("Horizontal", 22),
    Sketcher.Constraint("Vertical", 23),
    Sketcher.Constraint("Horizontal", 24),
    Sketcher.Constraint("Vertical", 25),
    Sketcher.Constraint("Horizontal", 26),
    Sketcher.Constraint("Vertical", 27),
    Sketcher.Constraint("Coincident", 16, 2, 15, 2),
    Sketcher.Constraint("Coincident", 20, 2, 17, 2),
    Sketcher.Constraint("Symmetric", 11, 2, 12, 2, -2),
    Sketcher.Constraint("Symmetric", 9, 2, 14, 2, -2),
    Sketcher.Constraint("Symmetric", 7, 2, 17, 2, -2),
    Sketcher.Constraint("Symmetric", 5, 2, 22, 2, -2),
    Sketcher.Constraint("Symmetric", 3, 2, 24, 2, -2),
    Sketcher.Constraint("Symmetric", 1, 2, 26, 2, -2),
    Sketcher.Constraint("Horizontal", 3, 2, 4, 2),
    Sketcher.Constraint("Horizontal", 2, 2, 5, 2),
    Sketcher.Constraint("Horizontal", 6, 2, 9, 2),
    Sketcher.Constraint("Equal", 2, 4),
    Sketcher.Constraint("Equal", 6, 8),
    Sketcher.Constraint("DistanceY", 1, 2, 1, 1, 5.0),
    Sketcher.Constraint("DistanceY", 16, 2, 16, 1, 7.0),
    Sketcher.Constraint("DistanceX", 0, 2, 0, 1, 17.4),
    Sketcher.Constraint("DistanceX", 17, 1, 17, 2, 17.6),
    Sketcher.Constraint("DistanceX", 0, 2, 4, 2, 35.0),
    Sketcher.Constraint("DistanceX", 8, 2, 12, 2, 35.0),
    Sketcher.Constraint("DistanceY", 0, 2, -1, 1, 75.9),
])
pocket4 = body.newObject("PartDesign::Pocket", "Pocket003")
pocket4.Profile = sketch6
pocket4.Length = 10

doc.recompute()
